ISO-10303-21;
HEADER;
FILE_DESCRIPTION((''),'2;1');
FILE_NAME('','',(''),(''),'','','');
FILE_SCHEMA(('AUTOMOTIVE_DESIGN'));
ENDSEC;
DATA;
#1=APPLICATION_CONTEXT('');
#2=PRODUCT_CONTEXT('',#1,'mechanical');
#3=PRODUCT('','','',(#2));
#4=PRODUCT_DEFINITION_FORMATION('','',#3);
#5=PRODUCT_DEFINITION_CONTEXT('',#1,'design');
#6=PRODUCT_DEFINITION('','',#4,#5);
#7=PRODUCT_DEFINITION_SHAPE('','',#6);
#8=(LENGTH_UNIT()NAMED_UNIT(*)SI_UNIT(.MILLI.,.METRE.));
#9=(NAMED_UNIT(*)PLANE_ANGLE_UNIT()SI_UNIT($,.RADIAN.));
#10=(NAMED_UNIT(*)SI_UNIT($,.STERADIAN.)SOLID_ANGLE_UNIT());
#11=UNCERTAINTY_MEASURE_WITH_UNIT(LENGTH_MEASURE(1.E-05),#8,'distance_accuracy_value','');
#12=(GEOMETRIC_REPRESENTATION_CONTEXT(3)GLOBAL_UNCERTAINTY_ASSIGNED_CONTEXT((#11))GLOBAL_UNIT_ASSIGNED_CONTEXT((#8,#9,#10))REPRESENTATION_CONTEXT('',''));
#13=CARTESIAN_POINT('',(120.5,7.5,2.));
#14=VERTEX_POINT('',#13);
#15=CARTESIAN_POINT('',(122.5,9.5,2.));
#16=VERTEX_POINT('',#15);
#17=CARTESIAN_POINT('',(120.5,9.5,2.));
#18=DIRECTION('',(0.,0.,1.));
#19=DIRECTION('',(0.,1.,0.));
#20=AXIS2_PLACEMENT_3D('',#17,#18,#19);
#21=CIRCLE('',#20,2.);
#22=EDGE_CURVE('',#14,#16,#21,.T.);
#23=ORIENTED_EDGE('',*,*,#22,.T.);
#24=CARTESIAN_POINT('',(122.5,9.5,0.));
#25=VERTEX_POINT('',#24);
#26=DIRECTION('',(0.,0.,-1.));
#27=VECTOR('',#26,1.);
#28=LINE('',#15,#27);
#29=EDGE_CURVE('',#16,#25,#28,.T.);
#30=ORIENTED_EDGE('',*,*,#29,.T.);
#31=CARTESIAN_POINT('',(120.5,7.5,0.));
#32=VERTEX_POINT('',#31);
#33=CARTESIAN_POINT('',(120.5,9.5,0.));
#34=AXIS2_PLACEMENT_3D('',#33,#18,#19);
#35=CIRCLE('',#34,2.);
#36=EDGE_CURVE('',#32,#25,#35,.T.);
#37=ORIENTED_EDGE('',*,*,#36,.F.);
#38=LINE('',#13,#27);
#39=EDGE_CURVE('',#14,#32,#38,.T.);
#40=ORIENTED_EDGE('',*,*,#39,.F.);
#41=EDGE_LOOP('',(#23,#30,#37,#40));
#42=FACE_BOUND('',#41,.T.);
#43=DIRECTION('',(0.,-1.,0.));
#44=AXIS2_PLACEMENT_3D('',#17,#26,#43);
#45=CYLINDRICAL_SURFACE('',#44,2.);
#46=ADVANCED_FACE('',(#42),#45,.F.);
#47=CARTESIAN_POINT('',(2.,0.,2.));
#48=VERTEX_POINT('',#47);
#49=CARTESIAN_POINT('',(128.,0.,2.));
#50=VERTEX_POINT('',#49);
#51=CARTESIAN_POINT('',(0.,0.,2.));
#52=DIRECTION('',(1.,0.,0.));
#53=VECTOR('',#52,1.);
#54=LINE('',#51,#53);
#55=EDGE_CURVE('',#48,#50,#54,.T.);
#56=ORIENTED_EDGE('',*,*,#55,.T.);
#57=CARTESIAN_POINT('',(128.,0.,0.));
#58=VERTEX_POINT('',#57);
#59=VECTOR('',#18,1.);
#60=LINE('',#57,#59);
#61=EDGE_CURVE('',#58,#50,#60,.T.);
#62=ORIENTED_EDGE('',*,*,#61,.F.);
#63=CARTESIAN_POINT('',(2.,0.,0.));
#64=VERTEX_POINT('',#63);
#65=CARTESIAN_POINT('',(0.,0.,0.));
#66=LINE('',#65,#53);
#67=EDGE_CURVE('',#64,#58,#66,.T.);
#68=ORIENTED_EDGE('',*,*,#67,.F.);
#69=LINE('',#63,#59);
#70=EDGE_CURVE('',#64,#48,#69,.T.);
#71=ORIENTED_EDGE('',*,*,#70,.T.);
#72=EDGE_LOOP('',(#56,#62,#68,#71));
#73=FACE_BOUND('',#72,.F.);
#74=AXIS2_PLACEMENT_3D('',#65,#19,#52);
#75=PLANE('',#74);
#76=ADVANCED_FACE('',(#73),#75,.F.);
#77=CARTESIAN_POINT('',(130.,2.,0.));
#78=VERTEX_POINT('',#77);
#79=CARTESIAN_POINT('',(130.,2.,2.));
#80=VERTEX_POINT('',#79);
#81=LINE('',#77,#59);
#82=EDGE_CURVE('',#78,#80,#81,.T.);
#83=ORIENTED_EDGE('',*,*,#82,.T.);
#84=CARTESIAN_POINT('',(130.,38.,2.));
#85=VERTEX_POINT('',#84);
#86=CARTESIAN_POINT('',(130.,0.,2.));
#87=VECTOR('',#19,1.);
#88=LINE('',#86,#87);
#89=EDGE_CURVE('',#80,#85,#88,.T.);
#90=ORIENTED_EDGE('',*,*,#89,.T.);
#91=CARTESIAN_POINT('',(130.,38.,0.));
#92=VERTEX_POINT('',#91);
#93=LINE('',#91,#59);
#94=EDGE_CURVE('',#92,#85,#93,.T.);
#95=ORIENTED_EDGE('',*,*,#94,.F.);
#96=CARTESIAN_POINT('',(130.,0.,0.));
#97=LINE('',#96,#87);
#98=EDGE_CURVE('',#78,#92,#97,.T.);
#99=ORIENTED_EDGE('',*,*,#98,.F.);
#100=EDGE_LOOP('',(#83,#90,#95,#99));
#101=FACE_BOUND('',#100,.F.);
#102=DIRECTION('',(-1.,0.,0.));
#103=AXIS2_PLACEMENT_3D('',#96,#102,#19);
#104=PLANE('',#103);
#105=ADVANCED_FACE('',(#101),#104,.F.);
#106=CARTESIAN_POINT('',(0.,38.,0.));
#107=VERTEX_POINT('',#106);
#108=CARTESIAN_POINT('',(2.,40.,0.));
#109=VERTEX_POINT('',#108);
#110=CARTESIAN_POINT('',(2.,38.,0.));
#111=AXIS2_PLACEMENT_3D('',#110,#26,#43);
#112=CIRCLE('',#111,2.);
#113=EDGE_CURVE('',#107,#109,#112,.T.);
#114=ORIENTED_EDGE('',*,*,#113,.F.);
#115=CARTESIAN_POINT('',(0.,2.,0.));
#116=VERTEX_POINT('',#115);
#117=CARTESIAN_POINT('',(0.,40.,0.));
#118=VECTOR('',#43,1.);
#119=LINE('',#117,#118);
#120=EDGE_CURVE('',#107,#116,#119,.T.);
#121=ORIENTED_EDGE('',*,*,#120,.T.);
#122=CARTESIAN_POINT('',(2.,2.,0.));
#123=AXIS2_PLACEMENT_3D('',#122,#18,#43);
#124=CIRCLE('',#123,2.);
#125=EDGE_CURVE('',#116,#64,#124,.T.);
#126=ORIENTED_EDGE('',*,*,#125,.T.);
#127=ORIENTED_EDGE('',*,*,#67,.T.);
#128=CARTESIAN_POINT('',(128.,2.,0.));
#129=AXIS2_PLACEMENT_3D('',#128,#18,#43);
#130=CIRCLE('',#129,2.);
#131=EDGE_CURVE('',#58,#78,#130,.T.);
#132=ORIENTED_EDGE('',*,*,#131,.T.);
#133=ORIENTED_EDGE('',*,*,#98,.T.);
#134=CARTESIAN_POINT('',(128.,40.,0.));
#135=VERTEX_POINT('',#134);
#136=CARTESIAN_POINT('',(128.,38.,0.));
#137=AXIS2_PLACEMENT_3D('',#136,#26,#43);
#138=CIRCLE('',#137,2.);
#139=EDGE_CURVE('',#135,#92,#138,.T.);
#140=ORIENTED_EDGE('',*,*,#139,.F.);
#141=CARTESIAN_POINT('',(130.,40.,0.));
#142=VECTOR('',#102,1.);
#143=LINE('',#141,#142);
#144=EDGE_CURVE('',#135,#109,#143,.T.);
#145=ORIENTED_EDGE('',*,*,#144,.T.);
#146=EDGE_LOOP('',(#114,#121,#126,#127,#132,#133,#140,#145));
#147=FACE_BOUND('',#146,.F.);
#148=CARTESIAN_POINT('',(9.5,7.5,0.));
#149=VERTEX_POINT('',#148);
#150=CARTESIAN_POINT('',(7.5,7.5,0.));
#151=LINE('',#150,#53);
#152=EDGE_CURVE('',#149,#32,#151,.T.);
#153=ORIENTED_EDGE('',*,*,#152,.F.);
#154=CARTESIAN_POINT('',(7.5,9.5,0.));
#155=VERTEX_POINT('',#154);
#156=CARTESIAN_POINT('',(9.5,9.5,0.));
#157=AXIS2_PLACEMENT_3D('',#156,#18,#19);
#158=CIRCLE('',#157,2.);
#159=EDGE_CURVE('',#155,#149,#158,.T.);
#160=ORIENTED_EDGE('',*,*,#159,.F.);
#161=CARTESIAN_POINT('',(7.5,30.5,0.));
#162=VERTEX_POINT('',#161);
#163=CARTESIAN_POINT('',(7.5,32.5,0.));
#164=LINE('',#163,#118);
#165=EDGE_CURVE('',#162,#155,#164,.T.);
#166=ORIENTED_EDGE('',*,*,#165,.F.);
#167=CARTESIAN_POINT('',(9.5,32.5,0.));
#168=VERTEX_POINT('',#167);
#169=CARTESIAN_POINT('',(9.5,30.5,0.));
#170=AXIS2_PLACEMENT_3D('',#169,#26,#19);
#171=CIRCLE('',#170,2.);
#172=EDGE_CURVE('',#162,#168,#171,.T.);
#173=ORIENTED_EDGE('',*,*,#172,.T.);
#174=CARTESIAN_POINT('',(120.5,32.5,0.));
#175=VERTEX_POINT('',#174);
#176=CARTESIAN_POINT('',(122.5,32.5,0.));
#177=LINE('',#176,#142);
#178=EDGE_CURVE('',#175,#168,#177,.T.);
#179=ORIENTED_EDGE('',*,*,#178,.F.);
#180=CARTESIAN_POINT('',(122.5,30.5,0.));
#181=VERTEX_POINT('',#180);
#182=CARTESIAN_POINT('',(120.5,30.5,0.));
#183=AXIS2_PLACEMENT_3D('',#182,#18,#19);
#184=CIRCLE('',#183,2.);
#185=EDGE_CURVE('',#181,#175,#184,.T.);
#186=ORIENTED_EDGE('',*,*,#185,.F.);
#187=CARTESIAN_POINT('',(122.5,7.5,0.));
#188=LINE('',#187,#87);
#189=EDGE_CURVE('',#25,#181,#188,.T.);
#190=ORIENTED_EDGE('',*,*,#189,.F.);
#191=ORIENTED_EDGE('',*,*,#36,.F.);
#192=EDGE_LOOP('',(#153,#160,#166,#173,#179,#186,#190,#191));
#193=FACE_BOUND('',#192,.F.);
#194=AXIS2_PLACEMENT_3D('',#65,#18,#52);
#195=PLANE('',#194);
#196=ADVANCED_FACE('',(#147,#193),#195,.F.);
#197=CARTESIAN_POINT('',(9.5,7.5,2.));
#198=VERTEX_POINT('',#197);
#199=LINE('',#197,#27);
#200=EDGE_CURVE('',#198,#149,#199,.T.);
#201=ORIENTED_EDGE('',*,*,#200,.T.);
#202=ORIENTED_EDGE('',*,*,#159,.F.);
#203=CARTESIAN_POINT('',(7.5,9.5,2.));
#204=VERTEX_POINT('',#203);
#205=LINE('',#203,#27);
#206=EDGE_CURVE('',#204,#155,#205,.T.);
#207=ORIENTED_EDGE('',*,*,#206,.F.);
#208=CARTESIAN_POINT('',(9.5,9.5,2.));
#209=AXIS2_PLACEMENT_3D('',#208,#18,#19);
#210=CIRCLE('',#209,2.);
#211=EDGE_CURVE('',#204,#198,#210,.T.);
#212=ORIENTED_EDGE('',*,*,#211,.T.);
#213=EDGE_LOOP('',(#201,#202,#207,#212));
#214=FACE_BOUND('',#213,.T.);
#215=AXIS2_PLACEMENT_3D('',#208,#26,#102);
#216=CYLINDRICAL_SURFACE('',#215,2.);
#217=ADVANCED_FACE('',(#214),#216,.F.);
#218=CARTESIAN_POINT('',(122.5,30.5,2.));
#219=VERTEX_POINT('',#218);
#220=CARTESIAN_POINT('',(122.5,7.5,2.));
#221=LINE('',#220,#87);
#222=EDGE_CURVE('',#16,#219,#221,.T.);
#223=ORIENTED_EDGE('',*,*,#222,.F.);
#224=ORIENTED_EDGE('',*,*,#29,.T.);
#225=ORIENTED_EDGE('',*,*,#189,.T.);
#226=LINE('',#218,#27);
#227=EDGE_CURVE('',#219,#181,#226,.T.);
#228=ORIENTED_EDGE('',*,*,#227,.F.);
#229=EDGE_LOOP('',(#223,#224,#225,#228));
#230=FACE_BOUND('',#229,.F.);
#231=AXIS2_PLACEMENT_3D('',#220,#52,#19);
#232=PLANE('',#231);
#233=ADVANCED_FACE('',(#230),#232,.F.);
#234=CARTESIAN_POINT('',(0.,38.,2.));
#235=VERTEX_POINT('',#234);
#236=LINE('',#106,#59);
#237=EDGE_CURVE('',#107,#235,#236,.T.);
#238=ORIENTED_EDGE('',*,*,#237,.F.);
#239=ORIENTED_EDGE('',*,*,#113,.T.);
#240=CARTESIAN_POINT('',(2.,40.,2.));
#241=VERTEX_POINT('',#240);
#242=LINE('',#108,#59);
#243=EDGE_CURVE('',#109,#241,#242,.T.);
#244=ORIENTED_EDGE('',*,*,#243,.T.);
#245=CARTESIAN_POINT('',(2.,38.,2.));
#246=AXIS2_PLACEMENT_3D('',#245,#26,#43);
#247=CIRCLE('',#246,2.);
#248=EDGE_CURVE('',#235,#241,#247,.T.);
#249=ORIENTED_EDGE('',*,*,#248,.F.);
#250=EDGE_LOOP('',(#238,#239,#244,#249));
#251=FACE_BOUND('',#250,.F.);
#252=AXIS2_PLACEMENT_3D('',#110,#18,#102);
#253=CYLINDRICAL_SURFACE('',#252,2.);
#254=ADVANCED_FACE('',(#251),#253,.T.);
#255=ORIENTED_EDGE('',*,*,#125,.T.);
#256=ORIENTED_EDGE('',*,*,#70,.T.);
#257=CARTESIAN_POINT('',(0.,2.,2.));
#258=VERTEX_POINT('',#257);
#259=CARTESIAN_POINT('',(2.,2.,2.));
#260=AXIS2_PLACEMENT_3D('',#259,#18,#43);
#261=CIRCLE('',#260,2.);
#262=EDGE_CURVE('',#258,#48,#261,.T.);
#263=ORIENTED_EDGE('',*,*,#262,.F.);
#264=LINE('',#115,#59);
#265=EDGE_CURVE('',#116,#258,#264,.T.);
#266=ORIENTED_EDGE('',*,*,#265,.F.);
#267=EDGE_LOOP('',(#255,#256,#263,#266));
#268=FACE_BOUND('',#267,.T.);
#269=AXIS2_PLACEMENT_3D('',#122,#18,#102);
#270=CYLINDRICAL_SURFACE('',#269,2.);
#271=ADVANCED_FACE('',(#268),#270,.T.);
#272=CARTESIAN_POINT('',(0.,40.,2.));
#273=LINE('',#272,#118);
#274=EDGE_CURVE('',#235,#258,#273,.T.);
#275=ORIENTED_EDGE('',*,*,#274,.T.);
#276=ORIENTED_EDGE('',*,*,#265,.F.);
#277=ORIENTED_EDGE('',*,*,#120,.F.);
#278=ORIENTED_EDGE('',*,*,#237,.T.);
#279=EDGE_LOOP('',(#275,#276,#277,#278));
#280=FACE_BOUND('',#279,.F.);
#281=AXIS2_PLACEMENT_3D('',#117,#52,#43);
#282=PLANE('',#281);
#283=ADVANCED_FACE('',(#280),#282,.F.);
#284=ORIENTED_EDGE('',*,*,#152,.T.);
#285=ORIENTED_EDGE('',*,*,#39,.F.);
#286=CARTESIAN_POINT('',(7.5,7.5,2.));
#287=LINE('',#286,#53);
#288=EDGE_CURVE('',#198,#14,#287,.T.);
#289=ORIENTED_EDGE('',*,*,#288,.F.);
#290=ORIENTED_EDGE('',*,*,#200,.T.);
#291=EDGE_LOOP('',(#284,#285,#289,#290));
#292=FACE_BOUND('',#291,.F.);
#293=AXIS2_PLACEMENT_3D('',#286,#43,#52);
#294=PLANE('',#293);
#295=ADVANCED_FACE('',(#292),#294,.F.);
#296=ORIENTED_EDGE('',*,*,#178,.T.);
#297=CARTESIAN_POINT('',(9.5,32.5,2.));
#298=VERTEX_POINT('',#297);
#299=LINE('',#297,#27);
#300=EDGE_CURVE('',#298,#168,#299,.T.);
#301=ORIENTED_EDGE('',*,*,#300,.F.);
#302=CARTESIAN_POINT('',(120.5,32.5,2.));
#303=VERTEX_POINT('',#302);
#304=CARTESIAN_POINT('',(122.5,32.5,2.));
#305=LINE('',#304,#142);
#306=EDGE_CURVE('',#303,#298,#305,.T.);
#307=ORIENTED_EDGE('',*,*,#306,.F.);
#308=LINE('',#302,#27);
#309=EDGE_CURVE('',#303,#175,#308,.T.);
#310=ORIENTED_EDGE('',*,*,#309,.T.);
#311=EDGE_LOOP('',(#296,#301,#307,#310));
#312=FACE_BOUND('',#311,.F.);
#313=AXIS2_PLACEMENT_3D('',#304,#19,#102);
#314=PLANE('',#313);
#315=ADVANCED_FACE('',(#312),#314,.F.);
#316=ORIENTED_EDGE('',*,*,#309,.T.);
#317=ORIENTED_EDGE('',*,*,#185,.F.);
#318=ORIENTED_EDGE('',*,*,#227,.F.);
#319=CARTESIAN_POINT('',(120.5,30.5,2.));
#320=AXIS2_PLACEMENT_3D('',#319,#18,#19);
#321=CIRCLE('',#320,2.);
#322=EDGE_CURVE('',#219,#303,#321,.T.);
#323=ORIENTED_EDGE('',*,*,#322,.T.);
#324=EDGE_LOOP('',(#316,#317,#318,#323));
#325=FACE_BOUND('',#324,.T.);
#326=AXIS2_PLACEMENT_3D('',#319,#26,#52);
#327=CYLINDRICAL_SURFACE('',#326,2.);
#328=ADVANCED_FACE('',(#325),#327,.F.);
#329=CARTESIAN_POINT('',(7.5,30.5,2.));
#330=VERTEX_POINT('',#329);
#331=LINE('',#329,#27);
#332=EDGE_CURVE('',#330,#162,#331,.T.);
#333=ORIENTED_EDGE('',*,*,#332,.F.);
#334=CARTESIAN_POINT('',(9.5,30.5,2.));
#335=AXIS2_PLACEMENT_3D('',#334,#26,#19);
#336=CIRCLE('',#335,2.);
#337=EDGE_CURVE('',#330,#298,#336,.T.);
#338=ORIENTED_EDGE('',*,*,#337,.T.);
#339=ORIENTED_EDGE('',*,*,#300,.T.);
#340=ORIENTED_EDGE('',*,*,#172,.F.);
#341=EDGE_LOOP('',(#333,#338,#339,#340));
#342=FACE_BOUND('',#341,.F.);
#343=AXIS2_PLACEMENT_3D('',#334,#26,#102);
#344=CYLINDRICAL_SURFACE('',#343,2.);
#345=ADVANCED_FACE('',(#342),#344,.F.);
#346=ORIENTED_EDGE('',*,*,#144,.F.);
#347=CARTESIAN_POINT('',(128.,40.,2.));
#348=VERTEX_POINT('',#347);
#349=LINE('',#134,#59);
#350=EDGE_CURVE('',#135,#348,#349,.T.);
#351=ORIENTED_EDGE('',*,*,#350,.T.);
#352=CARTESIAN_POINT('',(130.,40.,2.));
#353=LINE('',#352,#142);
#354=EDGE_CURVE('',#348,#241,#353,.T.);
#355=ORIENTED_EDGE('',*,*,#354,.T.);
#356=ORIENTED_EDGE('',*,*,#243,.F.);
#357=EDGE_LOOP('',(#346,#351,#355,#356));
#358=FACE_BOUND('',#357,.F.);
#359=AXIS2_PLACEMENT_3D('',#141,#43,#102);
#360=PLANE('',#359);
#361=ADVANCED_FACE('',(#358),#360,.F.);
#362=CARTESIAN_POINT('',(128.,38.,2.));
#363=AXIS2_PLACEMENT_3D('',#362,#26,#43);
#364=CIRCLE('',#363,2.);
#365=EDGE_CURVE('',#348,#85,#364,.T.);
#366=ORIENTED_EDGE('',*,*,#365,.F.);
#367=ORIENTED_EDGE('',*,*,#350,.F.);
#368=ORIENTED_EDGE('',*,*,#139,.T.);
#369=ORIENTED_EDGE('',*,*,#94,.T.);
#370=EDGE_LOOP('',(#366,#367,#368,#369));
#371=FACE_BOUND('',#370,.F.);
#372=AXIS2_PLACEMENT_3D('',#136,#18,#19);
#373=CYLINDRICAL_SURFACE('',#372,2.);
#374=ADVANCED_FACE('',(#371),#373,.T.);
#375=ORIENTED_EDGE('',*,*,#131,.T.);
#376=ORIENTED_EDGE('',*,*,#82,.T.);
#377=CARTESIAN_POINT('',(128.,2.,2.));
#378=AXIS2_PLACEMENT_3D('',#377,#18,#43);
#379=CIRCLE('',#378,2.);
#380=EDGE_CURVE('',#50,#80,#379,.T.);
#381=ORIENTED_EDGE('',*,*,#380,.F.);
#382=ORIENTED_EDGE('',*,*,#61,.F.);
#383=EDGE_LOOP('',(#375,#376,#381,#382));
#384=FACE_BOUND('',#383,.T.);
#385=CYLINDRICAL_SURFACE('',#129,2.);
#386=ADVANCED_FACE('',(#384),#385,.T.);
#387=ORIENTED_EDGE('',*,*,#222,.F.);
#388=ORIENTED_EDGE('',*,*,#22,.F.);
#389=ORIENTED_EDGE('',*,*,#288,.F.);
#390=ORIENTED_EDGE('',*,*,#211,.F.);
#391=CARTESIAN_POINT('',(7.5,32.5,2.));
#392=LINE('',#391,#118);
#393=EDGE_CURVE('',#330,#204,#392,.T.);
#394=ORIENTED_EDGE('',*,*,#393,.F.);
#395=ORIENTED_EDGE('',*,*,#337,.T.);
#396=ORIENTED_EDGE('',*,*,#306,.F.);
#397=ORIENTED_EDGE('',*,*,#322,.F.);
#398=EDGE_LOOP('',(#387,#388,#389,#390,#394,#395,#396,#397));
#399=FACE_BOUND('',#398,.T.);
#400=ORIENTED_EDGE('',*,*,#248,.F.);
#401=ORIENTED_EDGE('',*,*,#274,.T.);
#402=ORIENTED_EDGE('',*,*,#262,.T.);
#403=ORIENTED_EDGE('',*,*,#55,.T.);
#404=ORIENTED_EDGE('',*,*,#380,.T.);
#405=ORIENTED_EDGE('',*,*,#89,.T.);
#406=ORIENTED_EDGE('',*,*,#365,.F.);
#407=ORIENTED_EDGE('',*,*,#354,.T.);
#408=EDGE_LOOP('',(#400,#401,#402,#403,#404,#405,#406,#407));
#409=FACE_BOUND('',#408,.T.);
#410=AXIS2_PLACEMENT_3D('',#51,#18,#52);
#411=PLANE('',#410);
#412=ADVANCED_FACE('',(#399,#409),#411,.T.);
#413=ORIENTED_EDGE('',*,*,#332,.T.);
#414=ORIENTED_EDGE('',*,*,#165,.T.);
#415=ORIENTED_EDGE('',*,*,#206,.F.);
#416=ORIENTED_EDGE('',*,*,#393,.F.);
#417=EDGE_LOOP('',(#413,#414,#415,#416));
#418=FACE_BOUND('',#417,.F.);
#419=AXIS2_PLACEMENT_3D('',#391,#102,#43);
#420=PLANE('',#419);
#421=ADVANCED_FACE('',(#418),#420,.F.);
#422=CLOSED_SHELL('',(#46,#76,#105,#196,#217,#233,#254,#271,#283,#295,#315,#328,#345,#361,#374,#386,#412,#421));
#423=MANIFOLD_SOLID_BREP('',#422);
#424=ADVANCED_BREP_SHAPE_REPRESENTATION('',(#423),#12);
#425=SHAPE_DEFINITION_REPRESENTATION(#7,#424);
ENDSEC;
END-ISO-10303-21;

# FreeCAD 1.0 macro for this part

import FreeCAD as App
import Part
import Sketcher
from FreeCAD import Vector


def edges_at(feature, points):
    """Names of the edges that pass closest to the given points."""
    edges = feature.Shape.Edges
    near = lambda p: min(range(len(edges)), key=lambda i: edges[i].distToShape(Part.Vertex(*p))[0])
    return sorted({f"Edge{near(p) + 1}" for p in points})


def add_polygon(sketch, points):
    """Adds a closed chain of lines whose ends are joined by coincident constraints."""
    first, n = sketch.GeometryCount, len(points)
    for a, b in zip(points, points[1:] + points[:1]):
        sketch.addGeometry(Part.LineSegment(App.Vector(*a, 0), App.Vector(*b, 0)), False)
    for i in range(n):
        sketch.addConstraint(Sketcher.Constraint("Coincident", first + i, 2, first + (i + 1) % n, 1))

doc = App.newDocument("Part")
body = doc.addObject("PartDesign::Body", "Body")

# Sketch on XY plane
sketch1 = doc.addObject("Sketcher::SketchObject", "Sketch")
body.addObject(sketch1)
sketch1.AttachmentSupport = (doc.XY_Plane, [""])
sketch1.MapMode = "FlatFace"
add_polygon(sketch1, [(0, 40), (0, 0), (130, 0), (130, 40)])  # lines 0-3
sketch1.addConstraint([
    Sketcher.Constraint("Vertical", 0),
    Sketcher.Constraint("Horizontal", 1),
    Sketcher.Constraint("Vertical", 2),
    Sketcher.Constraint("Horizontal", 3),
    Sketcher.Constraint("Coincident", 0, 2, -1, 1),
    Sketcher.Constraint("DistanceX", 1, 1, 1, 2, 130.0),
    Sketcher.Constraint("DistanceY", 0, 2, 0, 1, 40.0),
])
pad1 = doc.addObject("PartDesign::Pad", "Pad")
body.addObject(pad1)
pad1.Profile = sketch1
pad1.Length = 2

# Sketch on XY plane
sketch2 = doc.addObject("Sketcher::SketchObject", "Sketch001")
body.addObject(sketch2)
sketch2.AttachmentSupport = (doc.XY_Plane, [""])
sketch2.MapMode = "FlatFace"
sketch2.AttachmentOffset = App.Placement(Vector(0, 0, 2), App.Rotation())
add_polygon(sketch2, [(8, 32), (8, 8), (122, 8), (122, 32)])  # lines 0-3
sketch2.addConstraint([
    Sketcher.Constraint("Vertical", 0),
    Sketcher.Constraint("Horizontal", 1),
    Sketcher.Constraint("Vertical", 2),
    Sketcher.Constraint("Horizontal", 3),
    Sketcher.Constraint("DistanceX", -1, 1, 0, 2, 7.5),
    Sketcher.Constraint("DistanceY", -1, 1, 0, 2, 7.5),
    Sketcher.Constraint("DistanceX", 1, 1, 1, 2, 115.0),
    Sketcher.Constraint("DistanceY", 0, 2, 0, 1, 25.0),
])
pocket1 = doc.addObject("PartDesign::Pocket", "Pocket")
body.addObject(pocket1)
pocket1.Profile = sketch2
pocket1.Length = 2
doc.recompute()

fillet = doc.addObject("PartDesign::Fillet", "Fillet")
body.addObject(fillet)
fillet.Base = (pocket1, edges_at(pocket1, [
    (0, 40, 1),
    (0, 0, 1),
    (7.5, 7.5, 1),
    (7.5, 32.5, 1),
    (130, 40, 1),
    (130, 0, 1),
    (122.5, 7.5, 1),
    (122.5, 32.5, 1),
]))
fillet.Radius = 2

doc.recompute()
